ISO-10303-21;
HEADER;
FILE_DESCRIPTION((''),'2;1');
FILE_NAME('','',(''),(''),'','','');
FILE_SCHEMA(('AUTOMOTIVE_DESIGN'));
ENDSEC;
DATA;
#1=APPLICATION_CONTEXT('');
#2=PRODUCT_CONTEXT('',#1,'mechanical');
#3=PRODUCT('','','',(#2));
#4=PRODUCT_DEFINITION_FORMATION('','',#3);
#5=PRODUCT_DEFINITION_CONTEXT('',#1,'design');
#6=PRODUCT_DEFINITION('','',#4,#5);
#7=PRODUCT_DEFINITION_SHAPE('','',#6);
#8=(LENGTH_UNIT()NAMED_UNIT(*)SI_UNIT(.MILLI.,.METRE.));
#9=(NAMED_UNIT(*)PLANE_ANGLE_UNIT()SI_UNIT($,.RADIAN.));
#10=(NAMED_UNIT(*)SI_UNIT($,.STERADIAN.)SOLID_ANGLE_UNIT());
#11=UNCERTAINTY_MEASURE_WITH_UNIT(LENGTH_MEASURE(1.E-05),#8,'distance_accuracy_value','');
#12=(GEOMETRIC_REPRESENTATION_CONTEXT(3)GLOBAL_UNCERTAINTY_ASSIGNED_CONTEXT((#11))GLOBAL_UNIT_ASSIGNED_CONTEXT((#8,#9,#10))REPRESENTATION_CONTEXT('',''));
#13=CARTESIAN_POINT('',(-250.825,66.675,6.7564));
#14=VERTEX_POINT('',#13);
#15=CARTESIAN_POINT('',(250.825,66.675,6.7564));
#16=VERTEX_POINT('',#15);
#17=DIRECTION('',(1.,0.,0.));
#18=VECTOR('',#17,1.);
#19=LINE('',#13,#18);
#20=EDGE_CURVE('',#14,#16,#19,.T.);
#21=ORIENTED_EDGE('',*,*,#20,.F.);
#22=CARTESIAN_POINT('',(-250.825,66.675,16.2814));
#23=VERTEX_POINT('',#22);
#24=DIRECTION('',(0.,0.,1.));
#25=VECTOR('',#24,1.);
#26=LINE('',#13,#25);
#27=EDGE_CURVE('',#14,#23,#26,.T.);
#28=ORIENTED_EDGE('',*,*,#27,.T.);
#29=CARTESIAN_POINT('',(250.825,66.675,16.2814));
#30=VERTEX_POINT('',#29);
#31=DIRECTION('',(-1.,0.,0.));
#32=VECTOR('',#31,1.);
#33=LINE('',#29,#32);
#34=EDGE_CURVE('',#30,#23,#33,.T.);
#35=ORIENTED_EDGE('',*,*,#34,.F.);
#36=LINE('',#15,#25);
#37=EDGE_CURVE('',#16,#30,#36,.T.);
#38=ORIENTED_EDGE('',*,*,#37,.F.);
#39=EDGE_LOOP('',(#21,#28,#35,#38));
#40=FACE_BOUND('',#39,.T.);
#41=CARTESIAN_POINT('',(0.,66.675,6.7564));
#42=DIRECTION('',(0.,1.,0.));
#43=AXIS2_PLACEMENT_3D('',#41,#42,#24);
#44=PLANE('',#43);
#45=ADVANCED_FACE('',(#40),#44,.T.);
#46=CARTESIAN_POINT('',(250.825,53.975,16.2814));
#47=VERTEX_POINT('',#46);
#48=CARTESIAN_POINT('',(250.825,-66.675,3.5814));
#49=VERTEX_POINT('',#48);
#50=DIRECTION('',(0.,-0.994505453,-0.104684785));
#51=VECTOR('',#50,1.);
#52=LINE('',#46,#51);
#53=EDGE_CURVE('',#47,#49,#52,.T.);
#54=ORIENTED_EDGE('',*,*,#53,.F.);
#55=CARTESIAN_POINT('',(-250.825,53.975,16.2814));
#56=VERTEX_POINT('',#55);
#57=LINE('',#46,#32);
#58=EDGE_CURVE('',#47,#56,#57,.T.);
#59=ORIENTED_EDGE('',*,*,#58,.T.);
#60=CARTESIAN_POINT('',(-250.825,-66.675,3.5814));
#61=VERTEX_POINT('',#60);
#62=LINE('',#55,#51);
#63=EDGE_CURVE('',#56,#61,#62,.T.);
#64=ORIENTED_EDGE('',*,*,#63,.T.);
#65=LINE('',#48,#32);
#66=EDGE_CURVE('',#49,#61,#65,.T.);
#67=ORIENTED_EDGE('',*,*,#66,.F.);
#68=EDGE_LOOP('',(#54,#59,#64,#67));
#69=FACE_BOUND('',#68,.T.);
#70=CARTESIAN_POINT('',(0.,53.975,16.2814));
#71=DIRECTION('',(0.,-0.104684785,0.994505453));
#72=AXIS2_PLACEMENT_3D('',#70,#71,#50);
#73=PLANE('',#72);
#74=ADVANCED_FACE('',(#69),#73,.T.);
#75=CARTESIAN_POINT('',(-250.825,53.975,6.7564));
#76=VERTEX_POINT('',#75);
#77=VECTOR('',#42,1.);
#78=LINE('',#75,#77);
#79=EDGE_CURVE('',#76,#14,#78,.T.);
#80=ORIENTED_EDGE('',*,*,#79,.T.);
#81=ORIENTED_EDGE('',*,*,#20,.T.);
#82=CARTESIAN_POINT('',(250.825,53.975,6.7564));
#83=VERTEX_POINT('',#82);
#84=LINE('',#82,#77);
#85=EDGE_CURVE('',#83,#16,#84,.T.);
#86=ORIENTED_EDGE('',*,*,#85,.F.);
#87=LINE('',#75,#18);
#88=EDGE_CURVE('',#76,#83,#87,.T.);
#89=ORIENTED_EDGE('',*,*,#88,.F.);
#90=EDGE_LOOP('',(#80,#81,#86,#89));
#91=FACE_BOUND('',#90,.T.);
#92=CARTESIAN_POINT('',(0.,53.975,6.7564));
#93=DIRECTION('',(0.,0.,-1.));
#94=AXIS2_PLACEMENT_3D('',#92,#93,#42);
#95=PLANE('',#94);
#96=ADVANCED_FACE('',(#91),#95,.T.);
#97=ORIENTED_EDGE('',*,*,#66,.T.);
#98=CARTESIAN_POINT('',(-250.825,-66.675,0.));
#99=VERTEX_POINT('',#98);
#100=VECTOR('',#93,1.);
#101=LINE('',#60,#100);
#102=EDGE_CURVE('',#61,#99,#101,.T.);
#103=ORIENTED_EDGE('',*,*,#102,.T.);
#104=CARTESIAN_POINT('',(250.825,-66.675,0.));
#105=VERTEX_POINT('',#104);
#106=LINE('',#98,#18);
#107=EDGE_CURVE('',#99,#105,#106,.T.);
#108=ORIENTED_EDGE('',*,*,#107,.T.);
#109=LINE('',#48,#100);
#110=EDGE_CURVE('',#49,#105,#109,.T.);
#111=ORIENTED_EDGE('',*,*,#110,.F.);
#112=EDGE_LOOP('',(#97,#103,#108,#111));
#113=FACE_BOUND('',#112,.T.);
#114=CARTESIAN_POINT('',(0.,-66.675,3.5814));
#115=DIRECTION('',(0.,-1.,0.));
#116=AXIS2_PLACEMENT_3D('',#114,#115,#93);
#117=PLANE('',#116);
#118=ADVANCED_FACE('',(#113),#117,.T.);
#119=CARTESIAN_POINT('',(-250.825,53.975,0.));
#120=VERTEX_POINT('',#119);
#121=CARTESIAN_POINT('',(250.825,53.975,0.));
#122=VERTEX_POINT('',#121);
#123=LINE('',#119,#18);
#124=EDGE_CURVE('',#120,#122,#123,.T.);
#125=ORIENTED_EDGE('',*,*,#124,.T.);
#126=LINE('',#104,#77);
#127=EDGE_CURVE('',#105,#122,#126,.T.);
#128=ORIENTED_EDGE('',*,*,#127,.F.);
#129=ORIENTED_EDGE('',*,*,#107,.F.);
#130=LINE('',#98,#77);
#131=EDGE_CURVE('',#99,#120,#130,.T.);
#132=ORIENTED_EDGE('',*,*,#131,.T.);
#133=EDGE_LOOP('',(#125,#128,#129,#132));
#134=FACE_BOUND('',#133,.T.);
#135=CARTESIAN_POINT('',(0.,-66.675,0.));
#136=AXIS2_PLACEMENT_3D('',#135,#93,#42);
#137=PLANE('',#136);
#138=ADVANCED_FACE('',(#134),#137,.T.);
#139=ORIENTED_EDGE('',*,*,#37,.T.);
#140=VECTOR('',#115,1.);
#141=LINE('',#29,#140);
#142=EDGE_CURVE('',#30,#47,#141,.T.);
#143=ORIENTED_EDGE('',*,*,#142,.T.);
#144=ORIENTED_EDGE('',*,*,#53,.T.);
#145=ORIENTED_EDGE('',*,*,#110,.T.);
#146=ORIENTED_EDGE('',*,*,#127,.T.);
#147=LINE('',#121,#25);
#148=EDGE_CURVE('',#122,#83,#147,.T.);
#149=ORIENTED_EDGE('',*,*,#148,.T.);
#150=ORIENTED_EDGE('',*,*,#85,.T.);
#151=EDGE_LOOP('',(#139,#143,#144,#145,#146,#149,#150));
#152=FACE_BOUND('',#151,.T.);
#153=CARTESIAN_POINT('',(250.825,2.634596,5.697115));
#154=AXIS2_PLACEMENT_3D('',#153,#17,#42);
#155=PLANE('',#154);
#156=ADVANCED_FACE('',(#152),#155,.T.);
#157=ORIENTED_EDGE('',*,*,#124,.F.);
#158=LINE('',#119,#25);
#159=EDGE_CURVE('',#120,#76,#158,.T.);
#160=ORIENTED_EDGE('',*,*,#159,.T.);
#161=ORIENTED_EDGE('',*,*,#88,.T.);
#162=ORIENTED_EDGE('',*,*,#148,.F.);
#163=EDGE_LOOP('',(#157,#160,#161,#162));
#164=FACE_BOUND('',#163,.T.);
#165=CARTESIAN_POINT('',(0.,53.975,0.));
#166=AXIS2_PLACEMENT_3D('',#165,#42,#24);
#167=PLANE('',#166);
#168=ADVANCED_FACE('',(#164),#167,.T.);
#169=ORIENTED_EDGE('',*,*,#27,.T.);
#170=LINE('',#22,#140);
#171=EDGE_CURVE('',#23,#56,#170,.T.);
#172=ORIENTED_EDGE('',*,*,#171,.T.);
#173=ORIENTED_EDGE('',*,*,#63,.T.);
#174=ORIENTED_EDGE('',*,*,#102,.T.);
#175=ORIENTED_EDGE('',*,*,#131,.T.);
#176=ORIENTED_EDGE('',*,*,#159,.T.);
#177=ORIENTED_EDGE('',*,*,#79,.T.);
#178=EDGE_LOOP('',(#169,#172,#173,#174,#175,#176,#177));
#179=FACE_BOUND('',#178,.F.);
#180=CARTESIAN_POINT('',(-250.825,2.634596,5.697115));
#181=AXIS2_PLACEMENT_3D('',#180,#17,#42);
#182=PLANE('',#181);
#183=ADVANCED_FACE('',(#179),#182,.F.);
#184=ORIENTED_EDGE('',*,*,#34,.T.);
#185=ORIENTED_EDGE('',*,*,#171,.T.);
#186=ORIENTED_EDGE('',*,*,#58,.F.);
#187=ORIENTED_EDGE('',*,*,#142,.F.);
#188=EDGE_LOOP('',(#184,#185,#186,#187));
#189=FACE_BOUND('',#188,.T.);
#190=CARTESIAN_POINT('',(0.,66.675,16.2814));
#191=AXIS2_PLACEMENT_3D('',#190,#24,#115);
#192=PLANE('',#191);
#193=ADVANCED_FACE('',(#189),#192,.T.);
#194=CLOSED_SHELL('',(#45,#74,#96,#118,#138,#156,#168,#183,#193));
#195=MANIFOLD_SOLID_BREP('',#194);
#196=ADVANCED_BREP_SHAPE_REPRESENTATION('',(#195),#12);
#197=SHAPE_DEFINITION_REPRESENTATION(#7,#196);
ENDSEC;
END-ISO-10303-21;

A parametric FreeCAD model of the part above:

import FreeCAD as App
import Part
import Sketcher
from FreeCAD import Vector
Q = App.Units.Quantity

doc = App.newDocument("Part")
body = doc.addObject("PartDesign::Body", "Body")

# Sketch on YZ plane
sketch1 = doc.addObject("Sketcher::SketchObject", "Sketch")
body.addObject(sketch1)
sketch1.AttachmentSupport = (doc.YZ_Plane, [""])
sketch1.MapMode = "FlatFace"
sketch1.addGeometry([
    Part.LineSegment(Vector(-66.7, 3.6, 0), Vector(-66.7, 0, 0)),  # 0
    Part.LineSegment(Vector(-66.7, 0, 0), Vector(54, 0, 0)),  # 1
    Part.LineSegment(Vector(54, 0, 0), Vector(54, 6.8, 0)),  # 2
    Part.LineSegment(Vector(54, 6.8, 0), Vector(66.7, 6.8, 0)),  # 3
    Part.LineSegment(Vector(66.7, 6.8, 0), Vector(66.7, 16.3, 0)),  # 4
    Part.LineSegment(Vector(66.7, 16.3, 0), Vector(54, 16.3, 0)),  # 5
    Part.LineSegment(Vector(54, 16.3, 0), Vector(-66.7, 3.6, 0)),  # 6
], False)
sketch1.addConstraint([
    Sketcher.Constraint("Coincident", 0, 2, 1, 1),
    Sketcher.Constraint("Coincident", 1, 2, 2, 1),
    Sketcher.Constraint("Coincident", 2, 2, 3, 1),
    Sketcher.Constraint("Coincident", 3, 2, 4, 1),
    Sketcher.Constraint("Coincident", 4, 2, 5, 1),
    Sketcher.Constraint("Coincident", 5, 2, 6, 1),
    Sketcher.Constraint("Coincident", 6, 2, 0, 1),
    Sketcher.Constraint("Vertical", 0),
    Sketcher.Constraint("Horizontal", 1),
    Sketcher.Constraint("Vertical", 2),
    Sketcher.Constraint("Horizontal", 3),
    Sketcher.Constraint("Vertical", 4),
    Sketcher.Constraint("Horizontal", 5),
    Sketcher.Constraint("PointOnObject", 0, 2, -1),
    Sketcher.Constraint("Vertical", 2, 2, 5, 2),
    Sketcher.Constraint("DistanceX", 3, 1, 3, 2, Q("0.5 in")),
    Sketcher.Constraint("DistanceX", 1, 1, 1, 2, Q("4.75 in")),
    Sketcher.Constraint("DistanceY", 6, 2, 5, 2, Q("0.5 in")),
    Sketcher.Constraint("DistanceY", 0, 2, 0, 1, Q("0.141 in")),
    Sketcher.Constraint("DistanceY", 2, 1, 2, 2, Q("0.266 in")),
    Sketcher.Constraint("DistanceX", 0, 2, -1, 1, Q("2.625 in")),
])
pad1 = doc.addObject("PartDesign::Pad", "Pad")
body.addObject(pad1)
pad1.Profile = sketch1
pad1.Length = Q("19.75 in")
pad1.Midplane = True

doc.recompute()
